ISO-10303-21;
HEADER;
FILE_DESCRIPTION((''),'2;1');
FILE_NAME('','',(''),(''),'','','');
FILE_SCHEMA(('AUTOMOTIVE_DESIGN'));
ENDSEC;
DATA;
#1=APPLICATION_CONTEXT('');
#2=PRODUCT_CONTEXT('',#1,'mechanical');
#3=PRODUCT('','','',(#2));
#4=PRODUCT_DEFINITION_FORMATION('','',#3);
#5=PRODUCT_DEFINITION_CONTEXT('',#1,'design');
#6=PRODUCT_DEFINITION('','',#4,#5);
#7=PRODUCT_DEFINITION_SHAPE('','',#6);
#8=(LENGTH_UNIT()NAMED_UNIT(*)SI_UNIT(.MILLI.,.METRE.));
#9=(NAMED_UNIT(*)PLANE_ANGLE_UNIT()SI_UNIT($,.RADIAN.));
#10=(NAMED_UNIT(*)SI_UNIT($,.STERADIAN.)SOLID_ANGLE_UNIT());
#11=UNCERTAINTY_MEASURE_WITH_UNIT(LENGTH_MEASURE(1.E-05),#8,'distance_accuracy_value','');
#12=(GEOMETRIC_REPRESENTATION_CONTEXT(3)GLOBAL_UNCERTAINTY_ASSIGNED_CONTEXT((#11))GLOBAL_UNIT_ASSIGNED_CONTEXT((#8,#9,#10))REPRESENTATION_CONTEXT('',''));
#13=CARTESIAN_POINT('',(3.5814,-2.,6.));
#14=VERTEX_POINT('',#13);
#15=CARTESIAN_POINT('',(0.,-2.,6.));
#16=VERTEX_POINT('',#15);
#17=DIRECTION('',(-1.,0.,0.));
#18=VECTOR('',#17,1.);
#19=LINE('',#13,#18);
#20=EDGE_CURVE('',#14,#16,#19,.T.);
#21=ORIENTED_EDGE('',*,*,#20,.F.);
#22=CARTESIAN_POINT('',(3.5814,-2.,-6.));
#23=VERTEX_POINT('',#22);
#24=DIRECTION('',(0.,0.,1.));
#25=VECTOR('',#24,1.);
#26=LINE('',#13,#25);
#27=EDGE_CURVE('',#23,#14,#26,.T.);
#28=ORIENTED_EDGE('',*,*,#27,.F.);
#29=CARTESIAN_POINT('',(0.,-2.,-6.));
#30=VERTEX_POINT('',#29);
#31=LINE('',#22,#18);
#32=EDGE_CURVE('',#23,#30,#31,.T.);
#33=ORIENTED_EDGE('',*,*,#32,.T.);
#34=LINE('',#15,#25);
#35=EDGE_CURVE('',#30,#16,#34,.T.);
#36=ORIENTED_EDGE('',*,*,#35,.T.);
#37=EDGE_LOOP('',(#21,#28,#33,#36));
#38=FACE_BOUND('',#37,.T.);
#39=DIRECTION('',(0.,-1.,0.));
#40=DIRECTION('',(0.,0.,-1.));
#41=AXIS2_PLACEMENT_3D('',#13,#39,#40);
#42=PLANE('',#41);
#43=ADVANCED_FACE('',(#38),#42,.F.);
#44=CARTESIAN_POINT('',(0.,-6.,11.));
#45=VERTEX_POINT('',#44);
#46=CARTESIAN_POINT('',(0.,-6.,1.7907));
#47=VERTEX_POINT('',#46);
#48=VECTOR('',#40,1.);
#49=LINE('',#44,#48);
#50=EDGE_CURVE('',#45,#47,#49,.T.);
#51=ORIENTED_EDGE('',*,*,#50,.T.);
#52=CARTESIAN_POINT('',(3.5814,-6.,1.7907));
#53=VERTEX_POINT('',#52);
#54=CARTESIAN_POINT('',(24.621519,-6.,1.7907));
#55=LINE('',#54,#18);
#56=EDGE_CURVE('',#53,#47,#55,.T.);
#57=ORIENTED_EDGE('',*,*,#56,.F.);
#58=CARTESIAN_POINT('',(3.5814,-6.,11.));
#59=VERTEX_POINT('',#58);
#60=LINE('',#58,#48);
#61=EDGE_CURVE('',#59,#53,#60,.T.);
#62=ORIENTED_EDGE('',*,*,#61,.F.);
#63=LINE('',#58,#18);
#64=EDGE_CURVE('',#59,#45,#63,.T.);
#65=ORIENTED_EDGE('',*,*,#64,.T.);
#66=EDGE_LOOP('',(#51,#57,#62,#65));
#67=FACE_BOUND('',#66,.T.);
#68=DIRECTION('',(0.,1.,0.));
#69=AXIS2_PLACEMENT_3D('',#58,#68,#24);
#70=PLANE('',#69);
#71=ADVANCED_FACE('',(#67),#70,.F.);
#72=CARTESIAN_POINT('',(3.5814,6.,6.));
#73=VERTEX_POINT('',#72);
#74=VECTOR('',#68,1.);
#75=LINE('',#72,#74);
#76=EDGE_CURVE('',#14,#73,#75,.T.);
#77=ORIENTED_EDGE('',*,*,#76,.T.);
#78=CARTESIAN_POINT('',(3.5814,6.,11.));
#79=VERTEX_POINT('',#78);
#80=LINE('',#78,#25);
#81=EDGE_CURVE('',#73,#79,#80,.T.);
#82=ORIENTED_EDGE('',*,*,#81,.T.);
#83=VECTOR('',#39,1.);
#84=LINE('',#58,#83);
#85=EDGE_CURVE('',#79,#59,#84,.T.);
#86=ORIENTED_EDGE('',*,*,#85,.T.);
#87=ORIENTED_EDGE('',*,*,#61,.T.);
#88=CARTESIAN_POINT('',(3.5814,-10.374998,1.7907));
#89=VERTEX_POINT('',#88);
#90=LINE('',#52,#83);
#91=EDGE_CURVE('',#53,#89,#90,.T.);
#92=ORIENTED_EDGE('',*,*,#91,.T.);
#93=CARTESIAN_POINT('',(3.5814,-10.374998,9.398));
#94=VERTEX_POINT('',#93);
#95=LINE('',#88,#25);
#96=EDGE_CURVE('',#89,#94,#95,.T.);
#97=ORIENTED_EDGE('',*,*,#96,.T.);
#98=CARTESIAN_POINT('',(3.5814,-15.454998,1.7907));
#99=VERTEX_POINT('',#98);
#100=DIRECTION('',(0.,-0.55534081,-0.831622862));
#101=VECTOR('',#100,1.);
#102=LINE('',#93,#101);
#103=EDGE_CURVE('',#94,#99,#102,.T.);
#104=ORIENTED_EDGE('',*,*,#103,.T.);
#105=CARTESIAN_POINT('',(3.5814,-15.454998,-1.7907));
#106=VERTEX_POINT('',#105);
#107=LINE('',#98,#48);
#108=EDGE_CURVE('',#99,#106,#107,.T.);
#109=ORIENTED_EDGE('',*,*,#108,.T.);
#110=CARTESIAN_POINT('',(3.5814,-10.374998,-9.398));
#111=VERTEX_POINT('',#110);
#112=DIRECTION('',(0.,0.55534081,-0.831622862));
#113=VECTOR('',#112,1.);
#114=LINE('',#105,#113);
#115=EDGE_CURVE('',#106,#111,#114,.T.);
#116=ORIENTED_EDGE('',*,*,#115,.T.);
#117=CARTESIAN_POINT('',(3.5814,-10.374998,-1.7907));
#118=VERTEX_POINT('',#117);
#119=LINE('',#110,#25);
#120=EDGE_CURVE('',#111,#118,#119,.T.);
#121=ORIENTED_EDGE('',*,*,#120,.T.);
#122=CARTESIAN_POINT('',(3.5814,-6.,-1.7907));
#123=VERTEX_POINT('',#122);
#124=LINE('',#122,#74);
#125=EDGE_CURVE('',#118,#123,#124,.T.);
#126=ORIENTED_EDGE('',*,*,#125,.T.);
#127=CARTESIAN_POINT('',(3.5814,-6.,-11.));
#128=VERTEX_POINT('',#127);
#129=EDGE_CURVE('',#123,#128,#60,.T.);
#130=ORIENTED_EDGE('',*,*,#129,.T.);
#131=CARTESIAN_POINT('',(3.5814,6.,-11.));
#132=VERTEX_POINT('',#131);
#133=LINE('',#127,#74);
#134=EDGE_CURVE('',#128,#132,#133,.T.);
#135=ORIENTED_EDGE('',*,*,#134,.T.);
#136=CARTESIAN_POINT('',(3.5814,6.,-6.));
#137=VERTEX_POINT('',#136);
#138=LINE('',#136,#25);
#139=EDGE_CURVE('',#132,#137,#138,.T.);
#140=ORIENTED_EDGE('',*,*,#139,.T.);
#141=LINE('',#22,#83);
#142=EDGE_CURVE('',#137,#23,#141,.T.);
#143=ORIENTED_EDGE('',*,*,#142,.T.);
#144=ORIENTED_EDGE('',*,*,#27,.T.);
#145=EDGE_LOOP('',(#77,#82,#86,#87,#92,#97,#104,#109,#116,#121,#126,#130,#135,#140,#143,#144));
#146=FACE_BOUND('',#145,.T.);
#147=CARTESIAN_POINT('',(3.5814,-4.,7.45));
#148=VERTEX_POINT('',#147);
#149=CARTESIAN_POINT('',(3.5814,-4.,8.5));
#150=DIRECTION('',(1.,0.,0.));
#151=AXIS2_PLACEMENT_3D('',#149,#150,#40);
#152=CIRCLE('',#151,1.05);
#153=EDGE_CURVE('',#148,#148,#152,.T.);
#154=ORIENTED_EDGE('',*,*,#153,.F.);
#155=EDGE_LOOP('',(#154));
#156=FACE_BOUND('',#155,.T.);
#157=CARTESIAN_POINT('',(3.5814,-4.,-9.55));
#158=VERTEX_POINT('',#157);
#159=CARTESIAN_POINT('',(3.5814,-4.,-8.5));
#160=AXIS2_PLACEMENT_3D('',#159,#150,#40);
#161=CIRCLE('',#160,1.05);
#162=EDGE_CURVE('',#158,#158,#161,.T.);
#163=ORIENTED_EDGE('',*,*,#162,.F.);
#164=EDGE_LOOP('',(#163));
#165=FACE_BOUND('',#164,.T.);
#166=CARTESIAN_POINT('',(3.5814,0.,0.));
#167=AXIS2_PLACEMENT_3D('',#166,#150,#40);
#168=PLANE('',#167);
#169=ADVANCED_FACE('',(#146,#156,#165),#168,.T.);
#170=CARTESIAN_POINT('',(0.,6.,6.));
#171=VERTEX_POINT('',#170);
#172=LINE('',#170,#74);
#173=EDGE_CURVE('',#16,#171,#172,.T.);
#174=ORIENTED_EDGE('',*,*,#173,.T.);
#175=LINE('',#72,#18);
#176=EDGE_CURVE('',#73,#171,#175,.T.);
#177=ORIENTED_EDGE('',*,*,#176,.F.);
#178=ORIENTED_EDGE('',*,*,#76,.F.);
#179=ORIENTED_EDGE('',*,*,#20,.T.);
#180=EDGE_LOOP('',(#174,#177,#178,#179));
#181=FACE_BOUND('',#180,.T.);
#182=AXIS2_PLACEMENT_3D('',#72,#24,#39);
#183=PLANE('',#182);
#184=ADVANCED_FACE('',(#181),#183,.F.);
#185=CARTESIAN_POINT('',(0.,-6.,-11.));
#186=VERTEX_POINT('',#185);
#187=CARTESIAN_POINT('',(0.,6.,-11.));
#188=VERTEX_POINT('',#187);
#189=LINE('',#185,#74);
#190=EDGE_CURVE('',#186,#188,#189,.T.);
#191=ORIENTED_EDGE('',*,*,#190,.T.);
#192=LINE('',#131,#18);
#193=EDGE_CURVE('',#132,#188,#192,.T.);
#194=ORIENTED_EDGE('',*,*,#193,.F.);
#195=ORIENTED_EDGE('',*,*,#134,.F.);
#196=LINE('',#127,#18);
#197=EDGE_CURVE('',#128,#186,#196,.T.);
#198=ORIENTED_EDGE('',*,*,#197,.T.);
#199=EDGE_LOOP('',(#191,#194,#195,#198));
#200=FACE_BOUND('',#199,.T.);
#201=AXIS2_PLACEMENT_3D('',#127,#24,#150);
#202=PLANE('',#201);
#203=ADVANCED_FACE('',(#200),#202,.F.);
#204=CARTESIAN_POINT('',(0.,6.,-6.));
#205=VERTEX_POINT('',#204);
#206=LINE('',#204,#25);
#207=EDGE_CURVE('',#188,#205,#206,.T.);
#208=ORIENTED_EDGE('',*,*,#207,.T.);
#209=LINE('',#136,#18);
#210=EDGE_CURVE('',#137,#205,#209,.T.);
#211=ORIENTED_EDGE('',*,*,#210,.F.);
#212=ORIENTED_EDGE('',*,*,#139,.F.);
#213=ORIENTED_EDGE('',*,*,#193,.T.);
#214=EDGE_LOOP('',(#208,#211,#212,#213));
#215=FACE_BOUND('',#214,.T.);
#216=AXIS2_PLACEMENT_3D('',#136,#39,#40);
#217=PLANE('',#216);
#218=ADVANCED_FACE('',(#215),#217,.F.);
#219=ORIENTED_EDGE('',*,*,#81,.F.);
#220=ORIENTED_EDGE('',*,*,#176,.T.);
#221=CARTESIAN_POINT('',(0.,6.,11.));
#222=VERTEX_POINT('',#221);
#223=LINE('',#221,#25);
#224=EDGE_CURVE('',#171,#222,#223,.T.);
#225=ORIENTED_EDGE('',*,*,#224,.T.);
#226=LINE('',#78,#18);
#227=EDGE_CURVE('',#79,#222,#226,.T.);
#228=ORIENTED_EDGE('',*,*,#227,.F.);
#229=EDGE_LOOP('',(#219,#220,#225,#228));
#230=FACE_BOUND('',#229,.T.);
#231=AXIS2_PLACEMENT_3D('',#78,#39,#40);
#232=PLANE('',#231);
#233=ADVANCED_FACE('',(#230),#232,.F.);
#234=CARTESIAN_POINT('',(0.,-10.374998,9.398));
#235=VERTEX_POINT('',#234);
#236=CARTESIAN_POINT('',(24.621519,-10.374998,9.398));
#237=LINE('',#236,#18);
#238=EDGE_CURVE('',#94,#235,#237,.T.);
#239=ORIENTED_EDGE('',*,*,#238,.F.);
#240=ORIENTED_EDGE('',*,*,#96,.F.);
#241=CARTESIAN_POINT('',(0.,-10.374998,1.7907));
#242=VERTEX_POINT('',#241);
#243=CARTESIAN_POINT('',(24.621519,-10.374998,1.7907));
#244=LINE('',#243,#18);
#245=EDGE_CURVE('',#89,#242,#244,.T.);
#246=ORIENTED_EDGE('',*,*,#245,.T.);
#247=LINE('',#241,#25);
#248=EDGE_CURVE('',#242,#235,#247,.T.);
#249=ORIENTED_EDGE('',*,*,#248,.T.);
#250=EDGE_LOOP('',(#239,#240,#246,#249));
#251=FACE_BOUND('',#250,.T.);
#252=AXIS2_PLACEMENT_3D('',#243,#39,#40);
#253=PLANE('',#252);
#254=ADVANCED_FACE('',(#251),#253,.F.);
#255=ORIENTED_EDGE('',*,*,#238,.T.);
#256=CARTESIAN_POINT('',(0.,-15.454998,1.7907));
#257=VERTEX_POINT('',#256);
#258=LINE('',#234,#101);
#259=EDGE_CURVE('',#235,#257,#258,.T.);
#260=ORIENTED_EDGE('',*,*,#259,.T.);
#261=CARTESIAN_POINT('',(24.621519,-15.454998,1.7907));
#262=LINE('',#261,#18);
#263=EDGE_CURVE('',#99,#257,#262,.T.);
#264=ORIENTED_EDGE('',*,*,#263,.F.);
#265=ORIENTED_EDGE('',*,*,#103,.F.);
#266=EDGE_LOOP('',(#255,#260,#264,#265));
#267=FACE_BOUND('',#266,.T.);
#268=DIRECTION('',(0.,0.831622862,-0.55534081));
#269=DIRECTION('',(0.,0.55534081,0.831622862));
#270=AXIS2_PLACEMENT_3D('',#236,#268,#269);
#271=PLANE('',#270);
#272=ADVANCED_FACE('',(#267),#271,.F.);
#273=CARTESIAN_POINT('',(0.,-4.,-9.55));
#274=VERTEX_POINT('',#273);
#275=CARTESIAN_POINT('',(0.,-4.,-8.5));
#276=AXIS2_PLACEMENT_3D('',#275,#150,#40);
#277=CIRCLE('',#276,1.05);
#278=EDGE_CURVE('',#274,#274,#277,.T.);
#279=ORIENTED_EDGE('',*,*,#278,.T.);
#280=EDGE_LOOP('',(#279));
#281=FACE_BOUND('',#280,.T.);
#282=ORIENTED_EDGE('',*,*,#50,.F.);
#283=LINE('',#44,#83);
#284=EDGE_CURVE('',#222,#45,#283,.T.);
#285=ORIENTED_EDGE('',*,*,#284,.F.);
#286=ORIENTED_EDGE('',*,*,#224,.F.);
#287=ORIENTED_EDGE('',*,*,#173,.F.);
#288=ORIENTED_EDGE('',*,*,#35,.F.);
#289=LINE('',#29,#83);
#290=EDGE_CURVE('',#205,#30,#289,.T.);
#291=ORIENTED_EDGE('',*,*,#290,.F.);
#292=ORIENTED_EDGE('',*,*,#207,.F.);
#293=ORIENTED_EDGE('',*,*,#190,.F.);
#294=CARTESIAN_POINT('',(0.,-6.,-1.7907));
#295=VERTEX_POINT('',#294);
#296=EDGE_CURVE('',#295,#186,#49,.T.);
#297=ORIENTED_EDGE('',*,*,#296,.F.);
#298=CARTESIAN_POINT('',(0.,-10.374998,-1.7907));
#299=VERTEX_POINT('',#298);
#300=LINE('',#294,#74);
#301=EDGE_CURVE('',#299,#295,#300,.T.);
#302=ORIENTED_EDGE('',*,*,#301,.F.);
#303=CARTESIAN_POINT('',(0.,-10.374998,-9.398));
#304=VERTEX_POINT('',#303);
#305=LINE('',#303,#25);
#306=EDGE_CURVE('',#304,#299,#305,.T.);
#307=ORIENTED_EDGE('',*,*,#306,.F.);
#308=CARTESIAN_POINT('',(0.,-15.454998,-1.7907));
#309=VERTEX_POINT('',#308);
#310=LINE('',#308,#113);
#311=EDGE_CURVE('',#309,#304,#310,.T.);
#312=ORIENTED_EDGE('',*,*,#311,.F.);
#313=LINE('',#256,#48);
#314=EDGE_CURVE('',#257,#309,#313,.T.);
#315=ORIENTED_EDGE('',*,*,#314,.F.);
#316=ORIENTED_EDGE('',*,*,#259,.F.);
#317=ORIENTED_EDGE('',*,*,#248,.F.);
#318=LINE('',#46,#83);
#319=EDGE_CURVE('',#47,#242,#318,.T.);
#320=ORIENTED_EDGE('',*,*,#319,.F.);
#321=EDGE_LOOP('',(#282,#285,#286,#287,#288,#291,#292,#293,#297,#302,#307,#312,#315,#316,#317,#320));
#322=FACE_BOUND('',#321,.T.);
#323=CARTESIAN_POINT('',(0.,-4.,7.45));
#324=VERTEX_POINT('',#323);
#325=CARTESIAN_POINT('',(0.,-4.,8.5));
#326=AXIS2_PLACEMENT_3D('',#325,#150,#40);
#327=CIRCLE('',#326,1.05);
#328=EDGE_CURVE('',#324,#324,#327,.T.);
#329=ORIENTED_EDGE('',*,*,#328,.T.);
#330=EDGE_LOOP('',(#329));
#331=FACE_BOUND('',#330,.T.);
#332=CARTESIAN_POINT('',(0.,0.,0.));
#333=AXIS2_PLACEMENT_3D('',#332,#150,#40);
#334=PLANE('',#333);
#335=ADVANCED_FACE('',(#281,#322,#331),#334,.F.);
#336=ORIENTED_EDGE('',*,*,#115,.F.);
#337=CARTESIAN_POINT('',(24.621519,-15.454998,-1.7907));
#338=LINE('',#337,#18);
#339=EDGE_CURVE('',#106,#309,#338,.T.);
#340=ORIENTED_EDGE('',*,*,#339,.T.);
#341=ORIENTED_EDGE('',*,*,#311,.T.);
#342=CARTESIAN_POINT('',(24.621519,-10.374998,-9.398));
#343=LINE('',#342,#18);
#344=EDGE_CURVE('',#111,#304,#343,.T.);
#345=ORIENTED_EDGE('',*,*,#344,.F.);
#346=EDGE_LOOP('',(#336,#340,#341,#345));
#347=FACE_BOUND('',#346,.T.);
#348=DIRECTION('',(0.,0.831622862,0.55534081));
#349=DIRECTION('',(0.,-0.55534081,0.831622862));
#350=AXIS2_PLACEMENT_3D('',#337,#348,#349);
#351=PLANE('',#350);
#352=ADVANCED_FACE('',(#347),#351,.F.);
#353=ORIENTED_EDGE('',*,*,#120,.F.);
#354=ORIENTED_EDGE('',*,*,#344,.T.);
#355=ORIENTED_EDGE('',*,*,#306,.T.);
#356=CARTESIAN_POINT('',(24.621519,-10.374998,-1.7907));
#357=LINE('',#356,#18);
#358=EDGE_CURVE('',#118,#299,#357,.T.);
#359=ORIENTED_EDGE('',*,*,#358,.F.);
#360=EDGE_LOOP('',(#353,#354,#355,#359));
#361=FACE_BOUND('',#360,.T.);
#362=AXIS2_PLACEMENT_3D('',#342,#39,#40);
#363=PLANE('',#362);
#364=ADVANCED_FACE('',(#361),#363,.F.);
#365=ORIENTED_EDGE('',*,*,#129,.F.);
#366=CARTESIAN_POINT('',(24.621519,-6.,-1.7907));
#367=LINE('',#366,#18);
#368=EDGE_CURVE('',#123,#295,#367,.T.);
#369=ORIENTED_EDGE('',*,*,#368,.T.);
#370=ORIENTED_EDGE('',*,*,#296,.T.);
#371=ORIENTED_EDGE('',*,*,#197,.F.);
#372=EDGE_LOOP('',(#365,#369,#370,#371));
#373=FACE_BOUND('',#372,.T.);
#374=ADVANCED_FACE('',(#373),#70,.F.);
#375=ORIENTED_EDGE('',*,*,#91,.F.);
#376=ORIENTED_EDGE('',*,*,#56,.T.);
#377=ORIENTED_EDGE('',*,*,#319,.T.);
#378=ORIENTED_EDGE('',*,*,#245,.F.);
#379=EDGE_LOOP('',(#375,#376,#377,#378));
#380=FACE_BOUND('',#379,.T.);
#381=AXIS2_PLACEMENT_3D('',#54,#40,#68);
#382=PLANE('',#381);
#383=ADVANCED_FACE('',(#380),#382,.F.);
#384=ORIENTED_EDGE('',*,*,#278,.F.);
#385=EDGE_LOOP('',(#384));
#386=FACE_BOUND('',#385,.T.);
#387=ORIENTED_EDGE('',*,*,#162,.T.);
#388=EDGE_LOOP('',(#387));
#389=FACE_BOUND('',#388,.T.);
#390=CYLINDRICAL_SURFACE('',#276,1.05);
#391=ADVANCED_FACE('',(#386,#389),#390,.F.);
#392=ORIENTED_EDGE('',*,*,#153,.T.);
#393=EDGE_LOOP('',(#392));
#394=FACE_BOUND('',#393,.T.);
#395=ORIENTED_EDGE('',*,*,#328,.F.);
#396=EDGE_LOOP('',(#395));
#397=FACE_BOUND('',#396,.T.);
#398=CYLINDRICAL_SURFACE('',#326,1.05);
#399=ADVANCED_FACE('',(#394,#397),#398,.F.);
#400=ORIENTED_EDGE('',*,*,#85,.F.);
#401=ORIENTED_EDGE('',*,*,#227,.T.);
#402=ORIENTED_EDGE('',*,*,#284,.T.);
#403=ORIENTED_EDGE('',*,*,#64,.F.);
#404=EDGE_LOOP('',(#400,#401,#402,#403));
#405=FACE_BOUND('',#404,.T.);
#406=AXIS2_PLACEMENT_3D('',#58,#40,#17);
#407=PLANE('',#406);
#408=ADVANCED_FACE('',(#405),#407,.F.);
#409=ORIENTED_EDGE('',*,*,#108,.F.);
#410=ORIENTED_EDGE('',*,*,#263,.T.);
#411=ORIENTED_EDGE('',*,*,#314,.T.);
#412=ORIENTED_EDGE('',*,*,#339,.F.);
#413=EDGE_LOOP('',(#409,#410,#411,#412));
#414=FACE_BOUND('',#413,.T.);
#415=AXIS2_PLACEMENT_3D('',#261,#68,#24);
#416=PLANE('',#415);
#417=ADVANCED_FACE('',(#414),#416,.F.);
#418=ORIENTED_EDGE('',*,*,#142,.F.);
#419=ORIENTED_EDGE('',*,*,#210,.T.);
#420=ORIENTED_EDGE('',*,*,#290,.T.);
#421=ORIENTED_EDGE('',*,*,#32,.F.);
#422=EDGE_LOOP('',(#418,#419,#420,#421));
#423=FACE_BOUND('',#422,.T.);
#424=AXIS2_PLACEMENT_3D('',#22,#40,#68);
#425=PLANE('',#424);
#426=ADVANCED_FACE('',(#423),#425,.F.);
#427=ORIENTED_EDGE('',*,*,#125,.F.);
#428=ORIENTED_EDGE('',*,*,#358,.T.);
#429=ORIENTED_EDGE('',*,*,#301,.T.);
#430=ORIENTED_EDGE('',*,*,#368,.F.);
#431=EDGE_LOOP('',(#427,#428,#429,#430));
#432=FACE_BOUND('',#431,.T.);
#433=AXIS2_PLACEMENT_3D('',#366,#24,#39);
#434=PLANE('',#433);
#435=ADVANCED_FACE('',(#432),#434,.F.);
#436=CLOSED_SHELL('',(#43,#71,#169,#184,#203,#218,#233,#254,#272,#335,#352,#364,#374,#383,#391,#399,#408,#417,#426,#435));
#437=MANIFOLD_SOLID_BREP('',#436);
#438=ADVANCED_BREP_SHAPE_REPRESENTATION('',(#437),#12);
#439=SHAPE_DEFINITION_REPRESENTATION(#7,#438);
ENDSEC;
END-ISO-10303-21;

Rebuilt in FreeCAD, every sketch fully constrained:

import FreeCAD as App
import Part
import Sketcher
from FreeCAD import Vector

doc = App.newDocument("Part")
params = doc.addObject("Spreadsheet::Sheet", "Params")
for row, (alias, value) in enumerate([
    ("sketch1_width", "8 mm"),
    ("sketch1_width2", "12 mm"),
    ("sketch1_height", "5 mm"),
    ("pad1_length", "3.5814 mm"),
    ("sketch2_diameter", "2.1 mm"),
    ("pad2_length", "3.5814 mm"),
], start=1):
    params.set(f"A{row}", alias)
    params.set(f"B{row}", "=" + value)
    params.setAlias(f"B{row}", alias)

body = doc.addObject("PartDesign::Body", "Body")

sketch1 = body.newObject("Sketcher::SketchObject", "Sketch")
sketch1.AttachmentSupport = (doc.getObject("YZ_Plane"), [""])
sketch1.MapMode = "FlatFace"
sketch1.addGeometry(Part.LineSegment(Vector(-2, 6, 0), Vector(6, 6, 0)), False)
sketch1.addGeometry(Part.LineSegment(Vector(6, 6, 0), Vector(6, 11, 0)), False)
sketch1.addGeometry(Part.LineSegment(Vector(6, 11, 0), Vector(-6, 11, 0)), False)
sketch1.addGeometry(Part.LineSegment(Vector(-6, 11, 0), Vector(-6, -11, 0)), False)
sketch1.addGeometry(Part.LineSegment(Vector(-6, -11, 0), Vector(6, -11, 0)), False)
sketch1.addGeometry(Part.LineSegment(Vector(6, -11, 0), Vector(6, -6, 0)), False)
sketch1.addGeometry(Part.LineSegment(Vector(6, -6, 0), Vector(-2, -6, 0)), False)
sketch1.addGeometry(Part.LineSegment(Vector(-2, -6, 0), Vector(-2, 6, 0)), False)
sketch1.addConstraint(Sketcher.Constraint("Coincident", 0, 2, 1, 1))
sketch1.addConstraint(Sketcher.Constraint("Coincident", 1, 2, 2, 1))
sketch1.addConstraint(Sketcher.Constraint("Coincident", 2, 2, 3, 1))
sketch1.addConstraint(Sketcher.Constraint("Coincident", 3, 2, 4, 1))
sketch1.addConstraint(Sketcher.Constraint("Coincident", 4, 2, 5, 1))
sketch1.addConstraint(Sketcher.Constraint("Coincident", 5, 2, 6, 1))
sketch1.addConstraint(Sketcher.Constraint("Coincident", 6, 2, 7, 1))
sketch1.addConstraint(Sketcher.Constraint("Coincident", 7, 2, 0, 1))
sketch1.addConstraint(Sketcher.Constraint("Horizontal", 0))
sketch1.addConstraint(Sketcher.Constraint("Vertical", 1))
sketch1.addConstraint(Sketcher.Constraint("Horizontal", 2))
sketch1.addConstraint(Sketcher.Constraint("Vertical", 3))
sketch1.addConstraint(Sketcher.Constraint("Horizontal", 4))
sketch1.addConstraint(Sketcher.Constraint("Vertical", 5))
sketch1.addConstraint(Sketcher.Constraint("Horizontal", 6))
sketch1.addConstraint(Sketcher.Constraint("Vertical", 7))
sketch1.addConstraint(Sketcher.Constraint("Symmetric", 1, 2, 3, 2, -1, 1))
sketch1.addConstraint(Sketcher.Constraint("Symmetric", 0, 2, 5, 2, -1))
sketch1.addConstraint(Sketcher.Constraint("Equal", 4, 7))
sketch1.addConstraint(Sketcher.Constraint("DistanceX", 0, 1, 0, 2, 8.0))
sketch1.addConstraint(Sketcher.Constraint("DistanceX", 2, 2, 2, 1, 12.0))
sketch1.addConstraint(Sketcher.Constraint("DistanceY", 1, 1, 1, 2, 5.0))
sketch1.setExpression("Constraints[19]", "Params.sketch1_width")
sketch1.setExpression("Constraints[20]", "Params.sketch1_width2")
sketch1.setExpression("Constraints[21]", "Params.sketch1_height")
pad1 = body.newObject("PartDesign::Pad", "Pad")
pad1.Profile = sketch1
pad1.setExpression("Length", "Params.pad1_length")

sketch2 = body.newObject("Sketcher::SketchObject", "Sketch001")
sketch2.AttachmentSupport = (doc.getObject("YZ_Plane"), [""])
sketch2.MapMode = "FlatFace"
sketch2.AttachmentOffset = App.Placement(Vector(0, 0, 3.5814), App.Rotation())
sketch2.addGeometry(Part.Circle(Vector(-4, 8.5, 0), Vector(0, 0, 1), 1.05), False)
sketch2.addGeometry(Part.Circle(Vector(-4, -8.5, 0), Vector(0, 0, 1), 1.05), False)
sketch2.addConstraint(Sketcher.Constraint("Equal", 0, 1))
sketch2.addConstraint(Sketcher.Constraint("Symmetric", 0, 3, 1, 3, -1))
sketch2.addConstraint(Sketcher.Constraint("Diameter", 0, 2.1))
sketch2.addConstraint(Sketcher.Constraint("DistanceX", 0, 3, -1, 1, 4.0))
sketch2.addConstraint(Sketcher.Constraint("DistanceY", 1, 3, 0, 3, 17.0))
sketch2.setExpression("Constraints[2]", "Params.sketch2_diameter")
pocket1 = body.newObject("PartDesign::Pocket", "Pocket")
pocket1.Profile = sketch2
pocket1.Type = "ThroughAll"

sketch3 = body.newObject("Sketcher::SketchObject", "Sketch002")
sketch3.AttachmentSupport = (doc.getObject("YZ_Plane"), [""])
sketch3.MapMode = "FlatFace"
sketch3.addGeometry(Part.LineSegment(Vector(-10.374998, 1.7907, 0), Vector(-10.374998, 9.398, 0)), False)
sketch3.addGeometry(Part.LineSegment(Vector(-10.374998, 9.398, 0), Vector(-15.454998, 1.7907, 0)), False)
sketch3.addGeometry(Part.LineSegment(Vector(-15.454998, 1.7907, 0), Vector(-15.454998, -1.7907, 0)), False)
sketch3.addGeometry(Part.LineSegment(Vector(-15.454998, -1.7907, 0), Vector(-10.374998, -9.398, 0)), False)
sketch3.addGeometry(Part.LineSegment(Vector(-10.374998, -9.398, 0), Vector(-10.374998, -1.7907, 0)), False)
sketch3.addGeometry(Part.LineSegment(Vector(-10.374998, -1.7907, 0), Vector(-6, -1.7907, 0)), False)
sketch3.addGeometry(Part.LineSegment(Vector(-6, -1.7907, 0), Vector(-6, 1.7907, 0)), False)
sketch3.addGeometry(Part.LineSegment(Vector(-6, 1.7907, 0), Vector(-10.374998, 1.7907, 0)), False)
sketch3.addConstraint(Sketcher.Constraint("Coincident", 0, 2, 1, 1))
sketch3.addConstraint(Sketcher.Constraint("Coincident", 1, 2, 2, 1))
sketch3.addConstraint(Sketcher.Constraint("Coincident", 2, 2, 3, 1))
sketch3.addConstraint(Sketcher.Constraint("Coincident", 3, 2, 4, 1))
sketch3.addConstraint(Sketcher.Constraint("Coincident", 4, 2, 5, 1))
sketch3.addConstraint(Sketcher.Constraint("Coincident", 5, 2, 6, 1))
sketch3.addConstraint(Sketcher.Constraint("Coincident", 6, 2, 7, 1))
sketch3.addConstraint(Sketcher.Constraint("Coincident", 7, 2, 0, 1))
sketch3.addConstraint(Sketcher.Constraint("Vertical", 0))
sketch3.addConstraint(Sketcher.Constraint("Vertical", 2))
sketch3.addConstraint(Sketcher.Constraint("Vertical", 4))
sketch3.addConstraint(Sketcher.Constraint("Horizontal", 5))
sketch3.addConstraint(Sketcher.Constraint("Vertical", 6))
sketch3.addConstraint(Sketcher.Constraint("Horizontal", 7))
sketch3.addConstraint(Sketcher.Constraint("Symmetric", 0, 2, 3, 2, -1))
sketch3.addConstraint(Sketcher.Constraint("Horizontal", 2, 2, 4, 2))
sketch3.addConstraint(Sketcher.Constraint("Horizontal", 1, 2, 6, 2))
sketch3.addConstraint(Sketcher.Constraint("Equal", 0, 4))
sketch3.addConstraint(Sketcher.Constraint("DistanceX", 5, 2, -1, 1, 6.0))
sketch3.addConstraint(Sketcher.Constraint("DistanceX", 1, 2, 0, 2, 5.08))
sketch3.addConstraint(Sketcher.Constraint("DistanceY", 0, 1, 0, 2, 7.6073))
sketch3.addConstraint(Sketcher.Constraint("DistanceY", 2, 2, 2, 1, 3.5814))
sketch3.addConstraint(Sketcher.Constraint("DistanceX", 5, 1, 5, 2, 4.374998))
pad2 = body.newObject("PartDesign::Pad", "Pad001")
pad2.Profile = sketch3
pad2.setExpression("Length", "Params.pad2_length")

doc.recompute()
